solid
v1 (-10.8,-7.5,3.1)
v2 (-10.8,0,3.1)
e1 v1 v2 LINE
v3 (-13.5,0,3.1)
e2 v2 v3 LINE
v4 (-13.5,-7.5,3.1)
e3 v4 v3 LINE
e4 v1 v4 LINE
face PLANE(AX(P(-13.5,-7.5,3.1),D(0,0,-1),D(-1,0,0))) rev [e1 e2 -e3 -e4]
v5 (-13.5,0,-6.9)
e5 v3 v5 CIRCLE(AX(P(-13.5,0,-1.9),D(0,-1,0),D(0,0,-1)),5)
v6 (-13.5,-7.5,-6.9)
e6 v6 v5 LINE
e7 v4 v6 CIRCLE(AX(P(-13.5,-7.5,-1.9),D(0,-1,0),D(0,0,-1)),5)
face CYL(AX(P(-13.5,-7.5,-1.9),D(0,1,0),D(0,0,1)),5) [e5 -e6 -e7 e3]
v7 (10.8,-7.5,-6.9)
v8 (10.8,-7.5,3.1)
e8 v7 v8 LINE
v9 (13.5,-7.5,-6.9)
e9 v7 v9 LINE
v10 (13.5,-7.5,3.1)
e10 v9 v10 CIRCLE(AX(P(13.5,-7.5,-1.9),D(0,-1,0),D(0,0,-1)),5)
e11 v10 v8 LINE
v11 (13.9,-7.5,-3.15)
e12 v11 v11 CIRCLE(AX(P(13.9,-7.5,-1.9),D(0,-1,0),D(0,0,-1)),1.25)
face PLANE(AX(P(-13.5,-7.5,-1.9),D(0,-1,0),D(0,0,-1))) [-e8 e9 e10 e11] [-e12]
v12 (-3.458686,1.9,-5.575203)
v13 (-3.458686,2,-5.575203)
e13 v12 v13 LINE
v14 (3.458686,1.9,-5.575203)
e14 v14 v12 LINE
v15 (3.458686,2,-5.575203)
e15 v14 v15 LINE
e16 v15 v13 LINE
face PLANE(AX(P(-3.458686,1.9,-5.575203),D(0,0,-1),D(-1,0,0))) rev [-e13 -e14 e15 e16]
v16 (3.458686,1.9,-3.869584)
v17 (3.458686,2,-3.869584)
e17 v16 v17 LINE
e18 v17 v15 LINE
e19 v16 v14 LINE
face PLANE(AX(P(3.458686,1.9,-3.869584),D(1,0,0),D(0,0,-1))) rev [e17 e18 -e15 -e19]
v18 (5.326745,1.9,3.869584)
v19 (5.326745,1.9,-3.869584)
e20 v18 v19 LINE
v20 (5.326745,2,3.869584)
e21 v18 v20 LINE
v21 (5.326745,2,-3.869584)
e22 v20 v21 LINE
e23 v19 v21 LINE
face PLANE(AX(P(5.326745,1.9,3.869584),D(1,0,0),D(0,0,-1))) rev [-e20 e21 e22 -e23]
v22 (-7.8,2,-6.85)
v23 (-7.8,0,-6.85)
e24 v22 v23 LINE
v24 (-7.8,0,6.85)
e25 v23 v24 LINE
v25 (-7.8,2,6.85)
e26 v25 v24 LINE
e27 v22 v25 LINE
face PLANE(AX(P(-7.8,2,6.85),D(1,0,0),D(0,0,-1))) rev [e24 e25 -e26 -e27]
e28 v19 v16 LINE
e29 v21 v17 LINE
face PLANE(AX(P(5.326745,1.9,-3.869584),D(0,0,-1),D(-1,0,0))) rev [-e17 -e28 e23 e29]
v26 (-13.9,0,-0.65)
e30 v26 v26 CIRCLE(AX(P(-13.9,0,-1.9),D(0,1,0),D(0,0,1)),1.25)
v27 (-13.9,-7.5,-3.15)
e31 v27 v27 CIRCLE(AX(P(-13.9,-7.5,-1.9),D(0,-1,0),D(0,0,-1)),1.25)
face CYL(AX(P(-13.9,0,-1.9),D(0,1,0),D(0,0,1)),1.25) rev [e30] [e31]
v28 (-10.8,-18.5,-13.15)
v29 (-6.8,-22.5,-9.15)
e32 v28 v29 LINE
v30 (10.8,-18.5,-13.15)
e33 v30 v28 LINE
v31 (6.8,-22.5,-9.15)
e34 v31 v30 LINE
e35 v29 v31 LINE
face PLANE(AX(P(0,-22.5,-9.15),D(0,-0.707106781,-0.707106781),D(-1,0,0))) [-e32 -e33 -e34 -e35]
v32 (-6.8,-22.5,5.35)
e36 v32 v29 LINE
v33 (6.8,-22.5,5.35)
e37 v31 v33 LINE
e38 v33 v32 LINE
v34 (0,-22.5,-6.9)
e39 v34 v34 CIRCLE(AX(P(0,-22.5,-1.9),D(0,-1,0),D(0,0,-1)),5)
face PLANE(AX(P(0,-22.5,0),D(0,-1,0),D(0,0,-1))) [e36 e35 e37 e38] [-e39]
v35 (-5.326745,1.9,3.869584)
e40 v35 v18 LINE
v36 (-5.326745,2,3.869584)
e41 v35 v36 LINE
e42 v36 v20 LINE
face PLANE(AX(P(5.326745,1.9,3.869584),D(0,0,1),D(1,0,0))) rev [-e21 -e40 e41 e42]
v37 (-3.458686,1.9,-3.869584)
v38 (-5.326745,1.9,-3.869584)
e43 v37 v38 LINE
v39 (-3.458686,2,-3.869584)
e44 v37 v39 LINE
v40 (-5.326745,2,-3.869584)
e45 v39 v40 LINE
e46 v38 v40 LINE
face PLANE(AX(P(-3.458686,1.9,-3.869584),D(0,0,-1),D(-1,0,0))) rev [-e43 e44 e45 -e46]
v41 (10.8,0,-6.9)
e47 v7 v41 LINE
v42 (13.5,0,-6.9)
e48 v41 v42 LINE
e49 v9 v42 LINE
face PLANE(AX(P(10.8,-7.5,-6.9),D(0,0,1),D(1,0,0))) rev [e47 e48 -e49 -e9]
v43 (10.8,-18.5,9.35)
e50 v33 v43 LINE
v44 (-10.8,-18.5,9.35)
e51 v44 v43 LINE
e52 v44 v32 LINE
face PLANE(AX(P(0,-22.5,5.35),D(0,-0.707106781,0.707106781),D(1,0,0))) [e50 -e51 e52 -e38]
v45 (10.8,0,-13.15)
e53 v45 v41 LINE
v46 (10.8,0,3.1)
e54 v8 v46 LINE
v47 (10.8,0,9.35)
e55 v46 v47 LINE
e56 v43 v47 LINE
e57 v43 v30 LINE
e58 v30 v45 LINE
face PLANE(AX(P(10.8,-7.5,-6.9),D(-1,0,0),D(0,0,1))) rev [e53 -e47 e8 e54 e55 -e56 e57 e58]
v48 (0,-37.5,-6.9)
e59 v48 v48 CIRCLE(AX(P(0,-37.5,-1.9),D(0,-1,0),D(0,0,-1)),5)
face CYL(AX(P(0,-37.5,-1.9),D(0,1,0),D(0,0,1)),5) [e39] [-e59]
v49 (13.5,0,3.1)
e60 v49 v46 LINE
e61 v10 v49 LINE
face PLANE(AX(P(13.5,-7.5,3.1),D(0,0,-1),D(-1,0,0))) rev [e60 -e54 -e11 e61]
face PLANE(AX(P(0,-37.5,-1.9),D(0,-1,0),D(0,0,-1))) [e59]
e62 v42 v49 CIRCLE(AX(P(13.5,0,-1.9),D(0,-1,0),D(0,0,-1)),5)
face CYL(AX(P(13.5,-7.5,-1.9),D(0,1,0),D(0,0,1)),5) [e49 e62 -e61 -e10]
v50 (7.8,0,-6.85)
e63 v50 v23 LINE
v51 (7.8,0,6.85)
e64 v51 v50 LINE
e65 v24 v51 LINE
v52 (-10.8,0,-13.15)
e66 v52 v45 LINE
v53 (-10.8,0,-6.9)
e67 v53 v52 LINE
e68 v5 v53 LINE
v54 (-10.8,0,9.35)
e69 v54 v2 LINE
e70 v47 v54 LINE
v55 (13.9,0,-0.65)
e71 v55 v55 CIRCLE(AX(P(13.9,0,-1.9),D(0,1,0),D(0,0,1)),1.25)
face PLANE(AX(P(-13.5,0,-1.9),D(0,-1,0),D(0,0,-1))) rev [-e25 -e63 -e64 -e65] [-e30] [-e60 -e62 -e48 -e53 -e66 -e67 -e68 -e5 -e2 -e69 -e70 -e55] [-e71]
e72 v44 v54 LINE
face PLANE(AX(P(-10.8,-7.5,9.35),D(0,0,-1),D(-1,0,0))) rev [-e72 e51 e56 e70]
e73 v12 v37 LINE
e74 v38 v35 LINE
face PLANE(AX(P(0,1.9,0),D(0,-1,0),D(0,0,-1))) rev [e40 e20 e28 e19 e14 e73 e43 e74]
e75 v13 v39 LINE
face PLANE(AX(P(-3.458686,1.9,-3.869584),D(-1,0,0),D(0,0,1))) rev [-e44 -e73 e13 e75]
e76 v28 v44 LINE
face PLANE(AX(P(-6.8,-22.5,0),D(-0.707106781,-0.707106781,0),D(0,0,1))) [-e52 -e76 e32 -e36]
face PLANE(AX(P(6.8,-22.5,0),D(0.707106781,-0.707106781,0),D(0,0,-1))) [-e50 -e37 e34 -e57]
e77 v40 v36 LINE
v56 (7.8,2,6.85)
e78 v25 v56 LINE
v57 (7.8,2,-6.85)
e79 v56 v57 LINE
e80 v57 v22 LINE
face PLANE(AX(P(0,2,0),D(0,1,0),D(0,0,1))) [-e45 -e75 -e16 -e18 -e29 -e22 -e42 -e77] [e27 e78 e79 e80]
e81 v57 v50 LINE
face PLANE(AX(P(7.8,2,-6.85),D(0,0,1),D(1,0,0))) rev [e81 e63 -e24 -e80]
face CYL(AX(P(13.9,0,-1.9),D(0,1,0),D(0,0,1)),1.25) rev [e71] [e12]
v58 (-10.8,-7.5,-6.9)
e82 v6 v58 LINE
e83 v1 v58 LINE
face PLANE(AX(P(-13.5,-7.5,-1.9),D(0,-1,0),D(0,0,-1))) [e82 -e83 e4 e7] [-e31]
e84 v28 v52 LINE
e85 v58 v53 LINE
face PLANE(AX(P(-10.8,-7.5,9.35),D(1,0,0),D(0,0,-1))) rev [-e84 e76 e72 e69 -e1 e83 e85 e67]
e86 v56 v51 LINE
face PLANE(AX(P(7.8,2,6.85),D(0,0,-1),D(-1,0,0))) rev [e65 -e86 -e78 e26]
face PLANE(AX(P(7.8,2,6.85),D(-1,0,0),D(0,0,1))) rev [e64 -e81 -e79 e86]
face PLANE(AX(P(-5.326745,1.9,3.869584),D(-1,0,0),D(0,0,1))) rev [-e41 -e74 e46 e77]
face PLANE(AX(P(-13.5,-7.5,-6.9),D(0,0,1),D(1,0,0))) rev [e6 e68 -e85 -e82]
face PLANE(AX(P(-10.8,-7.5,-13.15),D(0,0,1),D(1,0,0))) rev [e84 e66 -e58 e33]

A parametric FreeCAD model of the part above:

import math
import FreeCAD as App
import Part
import Sketcher
from FreeCAD import Vector


def edges_at(feature, points):
    """Names of the edges that pass closest to the given points."""
    edges = feature.Shape.Edges
    near = lambda p: min(range(len(edges)), key=lambda i: edges[i].distToShape(Part.Vertex(*p))[0])
    return sorted({f"Edge{near(p) + 1}" for p in points})


def add_polygon(sketch, points):
    """Adds a closed chain of lines whose ends are joined by coincident constraints."""
    first, n = sketch.GeometryCount, len(points)
    for a, b in zip(points, points[1:] + points[:1]):
        sketch.addGeometry(Part.LineSegment(App.Vector(*a, 0), App.Vector(*b, 0)), False)
    for i in range(n):
        sketch.addConstraint(Sketcher.Constraint("Coincident", first + i, 2, first + (i + 1) % n, 1))

doc = App.newDocument("Part")
body = doc.addObject("PartDesign::Body", "Body")

# Sketch on XZ plane
sketch1 = body.newObject("Sketcher::SketchObject", "Sketch")
sketch1.AttachmentSupport = (doc.getObject("XZ_Plane"), [""])
sketch1.MapMode = "FlatFace"
add_polygon(sketch1, [(-8, -7), (-8, 7), (8, 7), (8, -7)])  # lines 0-3
sketch1.addConstraint(Sketcher.Constraint("Vertical", 0))
sketch1.addConstraint(Sketcher.Constraint("Horizontal", 1))
sketch1.addConstraint(Sketcher.Constraint("Vertical", 2))
sketch1.addConstraint(Sketcher.Constraint("Horizontal", 3))
sketch1.addConstraint(Sketcher.Constraint("Symmetric", 0, 2, 2, 2, -1, 1))
sketch1.addConstraint(Sketcher.Constraint("DistanceX", 1, 1, 1, 2, 15.6))
sketch1.addConstraint(Sketcher.Constraint("DistanceY", 0, 1, 0, 2, 13.7))
pad1 = body.newObject("PartDesign::Pad", "Pad")
pad1.Profile = sketch1
pad1.Length = 2
pad1.Reversed = True

# Sketch on XZ plane
sketch2 = body.newObject("Sketcher::SketchObject", "Sketch001")
sketch2.AttachmentSupport = (doc.getObject("XZ_Plane"), [""])
sketch2.MapMode = "FlatFace"
sketch2.addGeometry(Part.LineSegment(Vector(10.8, 9.3, 0), Vector(-10.8, 9.3, 0)), False)
sketch2.addGeometry(Part.LineSegment(Vector(-10.8, 9.3, 0), Vector(-10.8, 3.1, 0)), False)
sketch2.addGeometry(Part.LineSegment(Vector(-10.8, 3.1, 0), Vector(-13.5, 3.1, 0)), False)
sketch2.addGeometry(Part.ArcOfCircle(Part.Circle(Vector(-13.5, -1.9, 0), Vector(0, 0, 1), 5), math.radians(90), math.radians(270)), False)
sketch2.addGeometry(Part.LineSegment(Vector(-13.5, -6.9, 0), Vector(-10.8, -6.9, 0)), False)
sketch2.addGeometry(Part.LineSegment(Vector(-10.8, -6.9, 0), Vector(-10.8, -13.2, 0)), False)
sketch2.addGeometry(Part.LineSegment(Vector(-10.8, -13.2, 0), Vector(10.8, -13.2, 0)), False)
sketch2.addGeometry(Part.LineSegment(Vector(10.8, -13.2, 0), Vector(10.8, -6.9, 0)), False)
sketch2.addGeometry(Part.LineSegment(Vector(10.8, -6.9, 0), Vector(13.5, -6.9, 0)), False)
sketch2.addGeometry(Part.ArcOfCircle(Part.Circle(Vector(13.5, -1.9, 0), Vector(0, 0, 1), 5), math.radians(-90), math.radians(90)), False)
sketch2.addGeometry(Part.LineSegment(Vector(13.5, 3.1, 0), Vector(10.8, 3.1, 0)), False)
sketch2.addGeometry(Part.LineSegment(Vector(10.8, 3.1, 0), Vector(10.8, 9.3, 0)), False)
sketch2.addConstraint(Sketcher.Constraint("Coincident", 0, 2, 1, 1))
sketch2.addConstraint(Sketcher.Constraint("Coincident", 1, 2, 2, 1))
sketch2.addConstraint(Sketcher.Constraint("Tangent", 2, 2, 3, 1))
sketch2.addConstraint(Sketcher.Constraint("Tangent", 3, 2, 4, 1))
sketch2.addConstraint(Sketcher.Constraint("Coincident", 4, 2, 5, 1))
sketch2.addConstraint(Sketcher.Constraint("Coincident", 5, 2, 6, 1))
sketch2.addConstraint(Sketcher.Constraint("Coincident", 6, 2, 7, 1))
sketch2.addConstraint(Sketcher.Constraint("Coincident", 7, 2, 8, 1))
sketch2.addConstraint(Sketcher.Constraint("Tangent", 8, 2, 9, 1))
sketch2.addConstraint(Sketcher.Constraint("Tangent", 9, 2, 10, 1))
sketch2.addConstraint(Sketcher.Constraint("Coincident", 10, 2, 11, 1))
sketch2.addConstraint(Sketcher.Constraint("Coincident", 11, 2, 0, 1))
sketch2.addConstraint(Sketcher.Constraint("Horizontal", 0))
sketch2.addConstraint(Sketcher.Constraint("Vertical", 1))
sketch2.addConstraint(Sketcher.Constraint("Horizontal", 2))
sketch2.addConstraint(Sketcher.Constraint("Horizontal", 4))
sketch2.addConstraint(Sketcher.Constraint("Vertical", 5))
sketch2.addConstraint(Sketcher.Constraint("Horizontal", 6))
sketch2.addConstraint(Sketcher.Constraint("Vertical", 7))
sketch2.addConstraint(Sketcher.Constraint("Horizontal", 8))
sketch2.addConstraint(Sketcher.Constraint("Horizontal", 10))
sketch2.addConstraint(Sketcher.Constraint("Vertical", 11))
sketch2.addConstraint(Sketcher.Constraint("Equal", 3, 9))
sketch2.addConstraint(Sketcher.Constraint("Symmetric", 3, 3, 9, 3, -2))
sketch2.addConstraint(Sketcher.Constraint("Vertical", 1, 2, 4, 2))
sketch2.addConstraint(Sketcher.Constraint("Vertical", 7, 2, 10, 2))
sketch2.addConstraint(Sketcher.Constraint("Equal", 4, 8))
sketch2.addConstraint(Sketcher.Constraint("Equal", 1, 5))
sketch2.addConstraint(Sketcher.Constraint("Radius", 3, 5.0))
sketch2.addConstraint(Sketcher.Constraint("DistanceX", 0, 2, 0, 1, 21.6))
sketch2.addConstraint(Sketcher.Constraint("DistanceX", 2, 2, 2, 1, 2.7))
sketch2.addConstraint(Sketcher.Constraint("DistanceY", 1, 2, 1, 1, 6.25))
sketch2.addConstraint(Sketcher.Constraint("DistanceY", 3, 3, -1, 1, 1.9))
pad2 = body.newObject("PartDesign::Pad", "Pad001")
pad2.Profile = sketch2
pad2.Length = 7.5

# Sketch on XZ plane
sketch3 = body.newObject("Sketcher::SketchObject", "Sketch002")
sketch3.AttachmentSupport = (doc.getObject("XZ_Plane"), [""])
sketch3.MapMode = "FlatFace"
sketch3.AttachmentOffset = App.Placement(Vector(0, 0, 7.5), App.Rotation())
add_polygon(sketch3, [(-11, 9), (-11, -13), (11, -13), (11, 9)])  # lines 0-3
sketch3.addConstraint(Sketcher.Constraint("Vertical", 0))
sketch3.addConstraint(Sketcher.Constraint("Horizontal", 1))
sketch3.addConstraint(Sketcher.Constraint("Vertical", 2))
sketch3.addConstraint(Sketcher.Constraint("Horizontal", 3))
sketch3.addConstraint(Sketcher.Constraint("DistanceX", 1, 1, 1, 2, 21.6))
sketch3.addConstraint(Sketcher.Constraint("DistanceY", 0, 2, 0, 1, 22.5))
sketch3.addConstraint(Sketcher.Constraint("DistanceX", 0, 2, -1, 1, 10.8))
sketch3.addConstraint(Sketcher.Constraint("DistanceY", 0, 2, -1, 1, 13.15))
pad3 = body.newObject("PartDesign::Pad", "Pad002")
pad3.Profile = sketch3
pad3.Length = 15
doc.recompute()

chamfer = body.newObject("PartDesign::Chamfer", "Chamfer")
chamfer.Base = (pad3, edges_at(pad3, [
    (-10.8, -22.5, -1.9),
    (0, -22.5, -13.15),
    (10.8, -22.5, -1.9),
    (0, -22.5, 9.35),
]))
chamfer.Size = 4

# Sketch on XZ plane
sketch4 = body.newObject("Sketcher::SketchObject", "Sketch003")
sketch4.AttachmentSupport = (doc.getObject("XZ_Plane"), [""])
sketch4.MapMode = "FlatFace"
sketch4.AttachmentOffset = App.Placement(Vector(0, 0, 22.5), App.Rotation())
sketch4.addGeometry(Part.Circle(Vector(0, -2, 0), Vector(0, 0, 1), 5), False)
sketch4.addConstraint(Sketcher.Constraint("PointOnObject", 0, 3, -2))
sketch4.addConstraint(Sketcher.Constraint("Diameter", 0, 10.0))
sketch4.addConstraint(Sketcher.Constraint("DistanceY", 0, 3, -1, 1, 1.9))
pad4 = body.newObject("PartDesign::Pad", "Pad003")
pad4.Profile = sketch4
pad4.Length = 15

# Sketch on XZ plane
sketch5 = body.newObject("Sketcher::SketchObject", "Sketch004")
sketch5.AttachmentSupport = (doc.getObject("XZ_Plane"), [""])
sketch5.MapMode = "FlatFace"
sketch5.AttachmentOffset = App.Placement(Vector(0, 0, -2), App.Rotation())
add_polygon(sketch5, [(-5.3, 3.9), (5.3, 3.9), (5.3, -3.9), (3.5, -3.9), (3.5, -5.6), (-3.5, -5.6), (-3.5, -3.9), (-5.3, -3.9)])  # lines 0-7
sketch5.addConstraint(Sketcher.Constraint("Horizontal", 0))
sketch5.addConstraint(Sketcher.Constraint("Vertical", 1))
sketch5.addConstraint(Sketcher.Constraint("Horizontal", 2))
sketch5.addConstraint(Sketcher.Constraint("Vertical", 3))
sketch5.addConstraint(Sketcher.Constraint("Horizontal", 4))
sketch5.addConstraint(Sketcher.Constraint("Vertical", 5))
sketch5.addConstraint(Sketcher.Constraint("Horizontal", 6))
sketch5.addConstraint(Sketcher.Constraint("Vertical", 7))
sketch5.addConstraint(Sketcher.Constraint("Symmetric", 0, 2, 6, 2, -1, 1))
sketch5.addConstraint(Sketcher.Constraint("Symmetric", 2, 2, 5, 2, -2))
sketch5.addConstraint(Sketcher.Constraint("DistanceX", 0, 1, 0, 2, 10.653489))
sketch5.addConstraint(Sketcher.Constraint("DistanceX", 2, 2, 2, 1, 1.868059))
sketch5.addConstraint(Sketcher.Constraint("DistanceY", 3, 2, 3, 1, 1.705619))
sketch5.addConstraint(Sketcher.Constraint("DistanceY", 1, 2, 1, 1, 7.739168))
pocket1 = body.newObject("PartDesign::Pocket", "Pocket")
pocket1.Profile = sketch5
pocket1.Length = 0.1
pocket1.Reversed = True

# Sketch on XZ plane
sketch6 = body.newObject("Sketcher::SketchObject", "Sketch005")
sketch6.AttachmentSupport = (doc.getObject("XZ_Plane"), [""])
sketch6.MapMode = "FlatFace"
sketch6.addGeometry(Part.Circle(Vector(13.9, -1.9, 0), Vector(0, 0, 1), 1.2), False)
sketch6.addGeometry(Part.Circle(Vector(-13.9, -1.9, 0), Vector(0, 0, 1), 1.2), False)
sketch6.addConstraint(Sketcher.Constraint("Equal", 0, 1))
sketch6.addConstraint(Sketcher.Constraint("Symmetric", 0, 3, 1, 3, -2))
sketch6.addConstraint(Sketcher.Constraint("Diameter", 0, 2.5))
sketch6.addConstraint(Sketcher.Constraint("DistanceX", -1, 1, 0, 3, 13.9))
sketch6.addConstraint(Sketcher.Constraint("DistanceY", 0, 3, -1, 1, 1.9))
doc.recompute()
hole = body.newObject("PartDesign::Hole", "Hole")
hole.Profile = sketch6
hole.ThreadType = "None"
hole.Diameter = 2.5
hole.DepthType = "ThroughAll"
hole.Reversed = True

doc.recompute()
